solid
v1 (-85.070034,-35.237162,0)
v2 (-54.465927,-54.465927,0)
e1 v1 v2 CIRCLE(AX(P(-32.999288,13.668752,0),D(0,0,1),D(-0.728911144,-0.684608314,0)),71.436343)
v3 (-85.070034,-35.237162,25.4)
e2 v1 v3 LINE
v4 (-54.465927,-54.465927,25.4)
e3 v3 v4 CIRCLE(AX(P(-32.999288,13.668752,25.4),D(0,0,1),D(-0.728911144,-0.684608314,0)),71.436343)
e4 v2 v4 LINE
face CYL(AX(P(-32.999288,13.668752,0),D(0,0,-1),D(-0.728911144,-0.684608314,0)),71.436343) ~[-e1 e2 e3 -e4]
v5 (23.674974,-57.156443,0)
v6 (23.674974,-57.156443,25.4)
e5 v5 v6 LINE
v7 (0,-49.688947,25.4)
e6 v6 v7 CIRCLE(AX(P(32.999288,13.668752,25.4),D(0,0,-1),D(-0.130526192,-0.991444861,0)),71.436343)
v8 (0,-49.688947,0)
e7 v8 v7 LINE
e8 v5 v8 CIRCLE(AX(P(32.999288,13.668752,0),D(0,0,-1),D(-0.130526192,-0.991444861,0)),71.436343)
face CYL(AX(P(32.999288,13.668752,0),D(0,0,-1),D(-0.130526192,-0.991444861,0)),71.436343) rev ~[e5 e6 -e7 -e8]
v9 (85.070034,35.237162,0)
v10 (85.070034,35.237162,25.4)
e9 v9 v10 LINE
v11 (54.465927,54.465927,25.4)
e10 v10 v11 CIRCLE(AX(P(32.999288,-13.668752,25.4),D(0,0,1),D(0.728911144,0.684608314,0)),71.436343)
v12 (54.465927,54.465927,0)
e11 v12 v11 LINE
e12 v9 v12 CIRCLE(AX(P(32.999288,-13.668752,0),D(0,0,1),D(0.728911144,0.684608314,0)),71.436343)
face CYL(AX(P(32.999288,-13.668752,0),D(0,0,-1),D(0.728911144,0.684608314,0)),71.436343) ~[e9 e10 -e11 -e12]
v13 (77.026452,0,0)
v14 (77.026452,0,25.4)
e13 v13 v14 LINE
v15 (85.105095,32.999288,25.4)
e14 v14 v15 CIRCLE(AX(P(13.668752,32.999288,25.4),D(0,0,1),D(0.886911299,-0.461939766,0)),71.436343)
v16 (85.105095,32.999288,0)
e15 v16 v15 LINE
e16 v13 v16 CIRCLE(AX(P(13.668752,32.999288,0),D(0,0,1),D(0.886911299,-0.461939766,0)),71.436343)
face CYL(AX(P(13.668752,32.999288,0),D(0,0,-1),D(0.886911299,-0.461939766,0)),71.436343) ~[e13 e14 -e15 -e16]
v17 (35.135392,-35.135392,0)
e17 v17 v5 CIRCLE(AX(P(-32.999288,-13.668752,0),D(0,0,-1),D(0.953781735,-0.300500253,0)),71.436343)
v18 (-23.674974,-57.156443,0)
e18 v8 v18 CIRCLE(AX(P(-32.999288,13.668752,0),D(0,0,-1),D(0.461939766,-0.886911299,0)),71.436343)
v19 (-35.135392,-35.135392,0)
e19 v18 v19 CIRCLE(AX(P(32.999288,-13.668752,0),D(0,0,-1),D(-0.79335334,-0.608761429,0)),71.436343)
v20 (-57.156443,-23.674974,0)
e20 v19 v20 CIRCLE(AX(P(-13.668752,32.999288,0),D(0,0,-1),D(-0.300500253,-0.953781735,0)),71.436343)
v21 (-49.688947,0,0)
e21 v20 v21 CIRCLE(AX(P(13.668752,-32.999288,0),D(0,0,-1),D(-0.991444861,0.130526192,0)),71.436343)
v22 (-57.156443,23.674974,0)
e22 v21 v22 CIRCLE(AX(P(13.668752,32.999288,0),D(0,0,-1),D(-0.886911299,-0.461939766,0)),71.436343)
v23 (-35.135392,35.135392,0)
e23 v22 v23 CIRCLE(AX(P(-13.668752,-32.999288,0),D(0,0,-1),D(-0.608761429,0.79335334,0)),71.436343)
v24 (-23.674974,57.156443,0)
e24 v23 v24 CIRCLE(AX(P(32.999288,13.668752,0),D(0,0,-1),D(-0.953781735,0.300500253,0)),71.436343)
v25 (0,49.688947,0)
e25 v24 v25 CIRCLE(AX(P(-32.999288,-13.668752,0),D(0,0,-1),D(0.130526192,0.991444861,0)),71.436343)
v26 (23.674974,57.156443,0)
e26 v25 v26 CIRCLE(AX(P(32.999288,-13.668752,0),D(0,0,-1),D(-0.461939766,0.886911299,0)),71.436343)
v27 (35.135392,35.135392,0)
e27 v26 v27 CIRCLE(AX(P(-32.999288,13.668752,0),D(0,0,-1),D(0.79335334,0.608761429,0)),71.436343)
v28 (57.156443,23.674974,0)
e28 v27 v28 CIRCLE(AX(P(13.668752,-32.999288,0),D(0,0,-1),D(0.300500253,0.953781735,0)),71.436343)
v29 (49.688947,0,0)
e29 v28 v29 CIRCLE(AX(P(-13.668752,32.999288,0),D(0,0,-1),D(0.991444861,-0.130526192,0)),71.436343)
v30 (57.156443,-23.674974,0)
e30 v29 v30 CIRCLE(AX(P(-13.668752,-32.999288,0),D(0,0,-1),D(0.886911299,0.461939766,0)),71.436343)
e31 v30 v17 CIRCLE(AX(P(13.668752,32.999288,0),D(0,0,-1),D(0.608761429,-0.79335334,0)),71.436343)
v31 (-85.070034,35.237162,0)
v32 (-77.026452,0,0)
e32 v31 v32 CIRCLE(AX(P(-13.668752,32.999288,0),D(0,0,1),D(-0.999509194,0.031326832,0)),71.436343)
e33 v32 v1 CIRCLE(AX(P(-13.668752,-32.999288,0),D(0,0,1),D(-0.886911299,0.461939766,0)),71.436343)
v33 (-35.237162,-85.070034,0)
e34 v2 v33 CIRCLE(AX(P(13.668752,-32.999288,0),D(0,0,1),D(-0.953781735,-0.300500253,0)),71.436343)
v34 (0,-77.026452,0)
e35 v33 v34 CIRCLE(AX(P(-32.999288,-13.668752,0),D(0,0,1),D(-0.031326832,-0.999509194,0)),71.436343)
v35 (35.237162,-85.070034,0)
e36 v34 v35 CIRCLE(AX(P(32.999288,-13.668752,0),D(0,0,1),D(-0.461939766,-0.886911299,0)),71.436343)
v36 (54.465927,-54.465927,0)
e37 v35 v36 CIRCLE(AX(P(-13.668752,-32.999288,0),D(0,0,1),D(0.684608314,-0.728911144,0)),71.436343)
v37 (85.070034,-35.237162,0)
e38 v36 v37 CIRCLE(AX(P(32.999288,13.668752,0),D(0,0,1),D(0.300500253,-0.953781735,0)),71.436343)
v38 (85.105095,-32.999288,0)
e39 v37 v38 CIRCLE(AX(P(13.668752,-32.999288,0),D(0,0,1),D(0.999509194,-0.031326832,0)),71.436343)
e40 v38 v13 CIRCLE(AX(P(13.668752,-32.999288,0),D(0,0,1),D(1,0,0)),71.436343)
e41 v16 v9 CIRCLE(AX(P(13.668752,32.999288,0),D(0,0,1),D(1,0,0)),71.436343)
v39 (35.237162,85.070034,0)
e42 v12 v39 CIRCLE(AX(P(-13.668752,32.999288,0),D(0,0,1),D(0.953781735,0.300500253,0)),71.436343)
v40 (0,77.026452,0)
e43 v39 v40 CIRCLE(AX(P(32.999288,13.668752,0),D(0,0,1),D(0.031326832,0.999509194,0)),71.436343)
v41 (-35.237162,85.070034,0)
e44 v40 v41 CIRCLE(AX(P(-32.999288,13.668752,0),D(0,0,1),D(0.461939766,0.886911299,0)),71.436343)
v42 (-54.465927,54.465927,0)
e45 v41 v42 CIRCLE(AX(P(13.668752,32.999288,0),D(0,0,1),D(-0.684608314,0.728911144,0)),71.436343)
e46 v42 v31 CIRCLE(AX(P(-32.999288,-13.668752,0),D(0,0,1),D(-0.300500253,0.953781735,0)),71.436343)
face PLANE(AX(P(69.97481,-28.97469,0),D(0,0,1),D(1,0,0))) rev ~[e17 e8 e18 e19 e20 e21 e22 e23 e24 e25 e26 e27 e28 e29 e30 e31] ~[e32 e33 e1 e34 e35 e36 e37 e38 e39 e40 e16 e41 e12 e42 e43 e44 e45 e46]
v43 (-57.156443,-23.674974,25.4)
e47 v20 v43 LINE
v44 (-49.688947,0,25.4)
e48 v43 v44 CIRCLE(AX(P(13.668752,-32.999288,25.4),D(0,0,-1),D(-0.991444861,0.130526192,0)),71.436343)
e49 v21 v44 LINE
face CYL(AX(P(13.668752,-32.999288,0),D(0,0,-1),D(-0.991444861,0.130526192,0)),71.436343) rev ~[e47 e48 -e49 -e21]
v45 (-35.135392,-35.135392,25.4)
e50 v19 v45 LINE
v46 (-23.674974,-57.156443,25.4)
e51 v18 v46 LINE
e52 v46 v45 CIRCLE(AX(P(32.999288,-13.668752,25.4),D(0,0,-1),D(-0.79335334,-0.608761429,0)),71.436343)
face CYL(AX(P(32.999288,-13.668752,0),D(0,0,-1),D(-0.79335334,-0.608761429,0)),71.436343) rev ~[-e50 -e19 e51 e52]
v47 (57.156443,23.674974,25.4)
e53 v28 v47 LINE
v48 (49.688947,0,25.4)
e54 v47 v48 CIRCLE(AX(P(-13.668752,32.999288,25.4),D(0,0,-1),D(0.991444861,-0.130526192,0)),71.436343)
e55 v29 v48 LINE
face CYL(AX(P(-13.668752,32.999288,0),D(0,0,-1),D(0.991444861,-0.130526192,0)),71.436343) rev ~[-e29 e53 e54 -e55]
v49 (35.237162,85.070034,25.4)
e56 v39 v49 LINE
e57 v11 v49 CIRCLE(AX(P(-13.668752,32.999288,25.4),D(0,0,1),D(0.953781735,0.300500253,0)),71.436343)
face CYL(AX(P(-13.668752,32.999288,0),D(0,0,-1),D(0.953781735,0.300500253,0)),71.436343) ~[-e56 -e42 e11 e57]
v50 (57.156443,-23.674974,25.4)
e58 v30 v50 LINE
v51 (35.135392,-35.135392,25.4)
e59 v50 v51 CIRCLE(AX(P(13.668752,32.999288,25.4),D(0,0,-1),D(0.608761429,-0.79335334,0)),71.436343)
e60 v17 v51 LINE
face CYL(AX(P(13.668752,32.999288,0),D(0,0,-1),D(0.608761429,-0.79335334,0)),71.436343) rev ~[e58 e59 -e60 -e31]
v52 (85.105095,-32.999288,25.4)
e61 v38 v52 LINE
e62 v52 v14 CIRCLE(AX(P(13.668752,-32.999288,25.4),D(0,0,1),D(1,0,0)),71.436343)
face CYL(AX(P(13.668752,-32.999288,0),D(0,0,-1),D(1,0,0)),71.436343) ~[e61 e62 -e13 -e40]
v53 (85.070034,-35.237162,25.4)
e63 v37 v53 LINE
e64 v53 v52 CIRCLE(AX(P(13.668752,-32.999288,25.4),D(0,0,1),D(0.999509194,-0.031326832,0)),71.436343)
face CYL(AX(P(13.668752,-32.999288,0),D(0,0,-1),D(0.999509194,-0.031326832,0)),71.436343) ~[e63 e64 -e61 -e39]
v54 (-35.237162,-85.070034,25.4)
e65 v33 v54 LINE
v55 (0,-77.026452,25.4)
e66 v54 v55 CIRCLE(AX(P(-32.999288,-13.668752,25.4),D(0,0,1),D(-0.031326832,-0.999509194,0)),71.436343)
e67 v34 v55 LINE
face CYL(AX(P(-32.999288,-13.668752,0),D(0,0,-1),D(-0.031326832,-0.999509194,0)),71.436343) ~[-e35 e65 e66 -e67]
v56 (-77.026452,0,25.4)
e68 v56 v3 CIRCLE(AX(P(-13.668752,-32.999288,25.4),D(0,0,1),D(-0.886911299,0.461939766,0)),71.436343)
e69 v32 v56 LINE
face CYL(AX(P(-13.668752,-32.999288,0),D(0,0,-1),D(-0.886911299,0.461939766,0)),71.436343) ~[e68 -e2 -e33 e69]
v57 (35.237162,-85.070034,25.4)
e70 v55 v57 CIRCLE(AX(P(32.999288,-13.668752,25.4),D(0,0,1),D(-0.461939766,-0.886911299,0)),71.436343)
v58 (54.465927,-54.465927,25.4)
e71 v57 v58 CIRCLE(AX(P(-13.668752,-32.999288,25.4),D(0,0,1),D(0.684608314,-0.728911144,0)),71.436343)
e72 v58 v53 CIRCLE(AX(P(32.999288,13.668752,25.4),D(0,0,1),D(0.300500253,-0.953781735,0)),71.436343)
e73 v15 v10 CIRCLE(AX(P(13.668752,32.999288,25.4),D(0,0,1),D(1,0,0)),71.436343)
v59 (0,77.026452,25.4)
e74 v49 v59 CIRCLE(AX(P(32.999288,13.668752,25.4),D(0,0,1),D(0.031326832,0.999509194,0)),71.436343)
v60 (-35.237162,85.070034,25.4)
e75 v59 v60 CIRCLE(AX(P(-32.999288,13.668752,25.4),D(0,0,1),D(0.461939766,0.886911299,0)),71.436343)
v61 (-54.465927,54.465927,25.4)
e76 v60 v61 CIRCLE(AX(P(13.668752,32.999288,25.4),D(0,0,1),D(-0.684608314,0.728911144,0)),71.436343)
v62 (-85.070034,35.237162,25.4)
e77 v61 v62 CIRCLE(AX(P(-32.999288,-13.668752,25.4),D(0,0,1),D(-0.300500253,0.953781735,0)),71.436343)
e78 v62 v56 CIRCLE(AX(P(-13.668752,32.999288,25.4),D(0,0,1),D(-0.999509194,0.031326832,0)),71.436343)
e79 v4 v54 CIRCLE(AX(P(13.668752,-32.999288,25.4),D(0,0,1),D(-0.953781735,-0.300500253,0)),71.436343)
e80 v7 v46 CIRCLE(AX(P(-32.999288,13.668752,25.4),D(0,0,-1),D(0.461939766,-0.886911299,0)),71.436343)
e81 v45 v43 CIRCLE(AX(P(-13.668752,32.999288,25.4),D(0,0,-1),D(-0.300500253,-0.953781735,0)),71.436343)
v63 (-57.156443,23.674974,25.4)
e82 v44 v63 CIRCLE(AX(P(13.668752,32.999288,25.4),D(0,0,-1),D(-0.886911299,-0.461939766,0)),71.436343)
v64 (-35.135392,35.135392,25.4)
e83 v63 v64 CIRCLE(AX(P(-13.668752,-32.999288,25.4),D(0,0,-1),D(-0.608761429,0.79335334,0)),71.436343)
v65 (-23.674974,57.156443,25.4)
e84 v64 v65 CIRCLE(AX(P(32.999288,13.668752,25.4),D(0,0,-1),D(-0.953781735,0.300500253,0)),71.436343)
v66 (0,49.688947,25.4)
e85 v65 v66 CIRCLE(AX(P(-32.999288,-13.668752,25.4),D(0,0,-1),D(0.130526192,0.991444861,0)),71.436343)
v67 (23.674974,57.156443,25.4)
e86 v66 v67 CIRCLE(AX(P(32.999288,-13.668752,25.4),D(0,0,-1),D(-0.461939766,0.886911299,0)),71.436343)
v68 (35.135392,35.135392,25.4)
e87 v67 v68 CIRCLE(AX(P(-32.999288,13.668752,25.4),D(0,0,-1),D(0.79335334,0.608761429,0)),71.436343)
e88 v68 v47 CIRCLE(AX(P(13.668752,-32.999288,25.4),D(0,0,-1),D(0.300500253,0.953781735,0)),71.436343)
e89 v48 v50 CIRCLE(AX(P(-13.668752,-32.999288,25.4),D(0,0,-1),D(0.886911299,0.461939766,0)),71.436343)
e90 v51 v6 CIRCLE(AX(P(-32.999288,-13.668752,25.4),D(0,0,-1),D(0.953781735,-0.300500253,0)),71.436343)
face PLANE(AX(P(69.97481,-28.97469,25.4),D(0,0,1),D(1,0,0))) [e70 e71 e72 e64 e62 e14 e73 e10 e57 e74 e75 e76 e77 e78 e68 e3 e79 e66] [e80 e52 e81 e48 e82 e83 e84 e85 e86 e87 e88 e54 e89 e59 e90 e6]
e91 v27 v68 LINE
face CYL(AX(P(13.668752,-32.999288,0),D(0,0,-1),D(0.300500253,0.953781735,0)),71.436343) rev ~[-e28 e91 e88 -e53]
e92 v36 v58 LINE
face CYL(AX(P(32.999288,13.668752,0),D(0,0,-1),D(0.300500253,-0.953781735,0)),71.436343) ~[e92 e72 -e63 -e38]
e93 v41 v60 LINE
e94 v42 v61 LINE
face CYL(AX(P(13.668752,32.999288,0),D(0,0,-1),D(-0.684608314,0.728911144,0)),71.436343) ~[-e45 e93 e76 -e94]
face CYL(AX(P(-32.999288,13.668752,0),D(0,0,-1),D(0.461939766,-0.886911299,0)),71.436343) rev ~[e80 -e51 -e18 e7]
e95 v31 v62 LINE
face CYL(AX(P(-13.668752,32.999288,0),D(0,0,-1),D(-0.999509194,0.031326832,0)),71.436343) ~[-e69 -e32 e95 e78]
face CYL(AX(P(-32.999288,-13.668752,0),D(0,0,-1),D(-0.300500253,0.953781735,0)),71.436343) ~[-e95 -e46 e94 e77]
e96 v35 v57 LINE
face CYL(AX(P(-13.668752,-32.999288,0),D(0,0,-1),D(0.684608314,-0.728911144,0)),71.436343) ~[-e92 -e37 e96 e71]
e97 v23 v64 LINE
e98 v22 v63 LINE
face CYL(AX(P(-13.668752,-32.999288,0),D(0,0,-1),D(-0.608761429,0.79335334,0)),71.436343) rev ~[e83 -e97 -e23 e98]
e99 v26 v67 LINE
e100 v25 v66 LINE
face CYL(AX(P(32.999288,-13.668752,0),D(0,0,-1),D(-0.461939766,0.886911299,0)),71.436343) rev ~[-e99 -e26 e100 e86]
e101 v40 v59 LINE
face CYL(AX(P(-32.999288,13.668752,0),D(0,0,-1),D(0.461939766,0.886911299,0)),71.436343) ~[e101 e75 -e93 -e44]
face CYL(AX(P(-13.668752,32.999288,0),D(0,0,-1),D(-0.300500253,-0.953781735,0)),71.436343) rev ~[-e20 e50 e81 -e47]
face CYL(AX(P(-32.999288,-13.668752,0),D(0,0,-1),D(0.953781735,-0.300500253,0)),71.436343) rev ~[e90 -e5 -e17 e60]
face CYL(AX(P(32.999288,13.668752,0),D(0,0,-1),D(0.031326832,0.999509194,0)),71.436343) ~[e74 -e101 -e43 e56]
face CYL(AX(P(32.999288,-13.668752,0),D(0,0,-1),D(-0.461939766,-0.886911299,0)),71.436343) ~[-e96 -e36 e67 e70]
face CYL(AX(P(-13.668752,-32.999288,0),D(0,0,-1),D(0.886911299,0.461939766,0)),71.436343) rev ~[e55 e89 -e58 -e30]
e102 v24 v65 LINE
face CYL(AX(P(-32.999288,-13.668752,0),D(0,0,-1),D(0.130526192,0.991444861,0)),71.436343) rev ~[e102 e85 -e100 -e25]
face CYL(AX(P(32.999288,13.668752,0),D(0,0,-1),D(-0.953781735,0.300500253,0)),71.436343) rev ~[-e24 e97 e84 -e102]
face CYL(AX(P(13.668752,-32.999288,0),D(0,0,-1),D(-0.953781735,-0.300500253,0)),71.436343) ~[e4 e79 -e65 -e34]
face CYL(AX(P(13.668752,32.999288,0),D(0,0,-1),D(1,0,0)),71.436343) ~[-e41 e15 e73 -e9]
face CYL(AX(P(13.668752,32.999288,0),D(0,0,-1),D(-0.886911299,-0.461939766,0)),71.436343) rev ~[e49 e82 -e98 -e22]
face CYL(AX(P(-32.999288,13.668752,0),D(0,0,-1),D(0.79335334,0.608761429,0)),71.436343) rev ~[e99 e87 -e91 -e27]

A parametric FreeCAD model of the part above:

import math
import FreeCAD as App
import Part
import Sketcher
from FreeCAD import Vector
Q = App.Units.Quantity

doc = App.newDocument("Part")
body = doc.addObject("PartDesign::Body", "Body")

# Sketch on XY plane
sketch1 = body.newObject("Sketcher::SketchObject", "Sketch")
sketch1.AttachmentSupport = (doc.getObject("XY_Plane"), [""])
sketch1.MapMode = "FlatFace"
sketch1.addGeometry([
    Part.ArcOfCircle(Part.Circle(Vector(-32.999288, -13.668752, 0), Vector(0, 0, 1), 71.436343), math.radians(-91.795189), math.radians(-62.487652)),  # 0
    Part.ArcOfCircle(Part.Circle(Vector(32.999288, -13.668752, 0), Vector(0, 0, 1), 71.436343), math.radians(-117.512348), math.radians(-88.204811)),  # 1
    Part.ArcOfCircle(Part.Circle(Vector(-13.668752, -32.999288, 0), Vector(0, 0, 1), 71.436343), math.radians(-46.795189), math.radians(-17.487652)),  # 2
    Part.ArcOfCircle(Part.Circle(Vector(32.999288, 13.668752, 0), Vector(0, 0, 1), 71.436343), math.radians(-72.512348), math.radians(-43.204811)),  # 3
    Part.ArcOfCircle(Part.Circle(Vector(13.668752, -32.999288, 0), Vector(0, 0, 1), 71.436343), math.radians(-1.795189), math.radians(0)),  # 4
    Part.ArcOfCircle(Part.Circle(Vector(13.668752, -32.999288, 0), Vector(0, 0, 1), 71.436343), math.radians(0), math.radians(27.512348)),  # 5
    Part.ArcOfCircle(Part.Circle(Vector(13.668752, 32.999288, 0), Vector(0, 0, 1), 71.436343), math.radians(-27.512348), math.radians(0)),  # 6
    Part.ArcOfCircle(Part.Circle(Vector(13.668752, 32.999288, 0), Vector(0, 0, 1), 71.436343), math.radians(0), math.radians(1.795189)),  # 7
    Part.ArcOfCircle(Part.Circle(Vector(32.999288, -13.668752, 0), Vector(0, 0, 1), 71.436343), math.radians(43.204811), math.radians(72.512348)),  # 8
    Part.ArcOfCircle(Part.Circle(Vector(-13.668752, 32.999288, 0), Vector(0, 0, 1), 71.436343), math.radians(17.487652), math.radians(46.795189)),  # 9
    Part.ArcOfCircle(Part.Circle(Vector(32.999288, 13.668752, 0), Vector(0, 0, 1), 71.436343), math.radians(88.204811), math.radians(117.512348)),  # 10
    Part.ArcOfCircle(Part.Circle(Vector(-32.999288, 13.668752, 0), Vector(0, 0, 1), 71.436343), math.radians(62.487652), math.radians(91.795189)),  # 11
    Part.ArcOfCircle(Part.Circle(Vector(13.668752, 32.999288, 0), Vector(0, 0, 1), 71.436343), math.radians(133.204811), math.radians(162.512348)),  # 12
    Part.ArcOfCircle(Part.Circle(Vector(-32.999288, -13.668752, 0), Vector(0, 0, 1), 71.436343), math.radians(107.487652), math.radians(136.795189)),  # 13
    Part.ArcOfCircle(Part.Circle(Vector(-13.668752, 32.999288, 0), Vector(0, 0, 1), 71.436343), math.radians(178.204811), math.radians(207.512348)),  # 14
    Part.ArcOfCircle(Part.Circle(Vector(-13.668752, -32.999288, 0), Vector(0, 0, 1), 71.436343), math.radians(152.487652), math.radians(181.795189)),  # 15
    Part.ArcOfCircle(Part.Circle(Vector(-32.999288, 13.668752, 0), Vector(0, 0, 1), 71.436343), math.radians(-136.795189), math.radians(-107.487652)),  # 16
    Part.ArcOfCircle(Part.Circle(Vector(13.668752, -32.999288, 0), Vector(0, 0, 1), 71.436343), math.radians(-162.512348), math.radians(-133.204811)),  # 17
    Part.ArcOfCircle(Part.Circle(Vector(-32.999288, -13.668752, 0), Vector(0, 0, 1), 71.436343), math.radians(-37.5), math.radians(-17.487652)),  # 18
    Part.ArcOfCircle(Part.Circle(Vector(32.999288, 13.668752, 0), Vector(0, 0, 1), 71.436343), math.radians(-117.512348), math.radians(-97.5)),  # 19
    Part.ArcOfCircle(Part.Circle(Vector(-32.999288, 13.668752, 0), Vector(0, 0, 1), 71.436343), math.radians(-82.5), math.radians(-62.487652)),  # 20
    Part.ArcOfCircle(Part.Circle(Vector(32.999288, -13.668752, 0), Vector(0, 0, 1), 71.436343), math.radians(-162.512348), math.radians(-142.5)),  # 21
    Part.ArcOfCircle(Part.Circle(Vector(-13.668752, 32.999288, 0), Vector(0, 0, 1), 71.436343), math.radians(-127.5), math.radians(-107.487652)),  # 22
    Part.ArcOfCircle(Part.Circle(Vector(13.668752, -32.999288, 0), Vector(0, 0, 1), 71.436343), math.radians(152.487652), math.radians(172.5)),  # 23
    Part.ArcOfCircle(Part.Circle(Vector(13.668752, 32.999288, 0), Vector(0, 0, 1), 71.436343), math.radians(-172.5), math.radians(-152.487652)),  # 24
    Part.ArcOfCircle(Part.Circle(Vector(-13.668752, -32.999288, 0), Vector(0, 0, 1), 71.436343), math.radians(107.487652), math.radians(127.5)),  # 25
    Part.ArcOfCircle(Part.Circle(Vector(32.999288, 13.668752, 0), Vector(0, 0, 1), 71.436343), math.radians(142.5), math.radians(162.512348)),  # 26
    Part.ArcOfCircle(Part.Circle(Vector(-32.999288, -13.668752, 0), Vector(0, 0, 1), 71.436343), math.radians(62.487652), math.radians(82.5)),  # 27
    Part.ArcOfCircle(Part.Circle(Vector(32.999288, -13.668752, 0), Vector(0, 0, 1), 71.436343), math.radians(97.5), math.radians(117.512348)),  # 28
    Part.ArcOfCircle(Part.Circle(Vector(-32.999288, 13.668752, 0), Vector(0, 0, 1), 71.436343), math.radians(17.487652), math.radians(37.5)),  # 29
    Part.ArcOfCircle(Part.Circle(Vector(13.668752, -32.999288, 0), Vector(0, 0, 1), 71.436343), math.radians(52.5), math.radians(72.512348)),  # 30
    Part.ArcOfCircle(Part.Circle(Vector(-13.668752, 32.999288, 0), Vector(0, 0, 1), 71.436343), math.radians(-27.512348), math.radians(-7.5)),  # 31
    Part.ArcOfCircle(Part.Circle(Vector(-13.668752, -32.999288, 0), Vector(0, 0, 1), 71.436343), math.radians(7.5), math.radians(27.512348)),  # 32
    Part.ArcOfCircle(Part.Circle(Vector(13.668752, 32.999288, 0), Vector(0, 0, 1), 71.436343), math.radians(-72.512348), math.radians(-52.5)),  # 33
], False)
sketch1.addConstraint([
    Sketcher.Constraint("Coincident", 0, 2, 1, 1),
    Sketcher.Constraint("Coincident", 1, 2, 2, 1),
    Sketcher.Constraint("Coincident", 2, 2, 3, 1),
    Sketcher.Constraint("Coincident", 3, 2, 4, 1),
    Sketcher.Constraint("Tangent", 4, 2, 5, 1),
    Sketcher.Constraint("Coincident", 5, 2, 6, 1),
    Sketcher.Constraint("Tangent", 6, 2, 7, 1),
    Sketcher.Constraint("Coincident", 7, 2, 8, 1),
    Sketcher.Constraint("Coincident", 8, 2, 9, 1),
    Sketcher.Constraint("Coincident", 9, 2, 10, 1),
    Sketcher.Constraint("Coincident", 10, 2, 11, 1),
    Sketcher.Constraint("Coincident", 11, 2, 12, 1),
    Sketcher.Constraint("Coincident", 12, 2, 13, 1),
    Sketcher.Constraint("Coincident", 13, 2, 14, 1),
    Sketcher.Constraint("Coincident", 14, 2, 15, 1),
    Sketcher.Constraint("Coincident", 15, 2, 16, 1),
    Sketcher.Constraint("Coincident", 16, 2, 17, 1),
    Sketcher.Constraint("Coincident", 17, 2, 0, 1),
    Sketcher.Constraint("Coincident", 18, 1, 19, 2),
    Sketcher.Constraint("Coincident", 19, 1, 20, 2),
    Sketcher.Constraint("Coincident", 20, 1, 21, 2),
    Sketcher.Constraint("Coincident", 21, 1, 22, 2),
    Sketcher.Constraint("Coincident", 22, 1, 23, 2),
    Sketcher.Constraint("Coincident", 23, 1, 24, 2),
    Sketcher.Constraint("Coincident", 24, 1, 25, 2),
    Sketcher.Constraint("Coincident", 25, 1, 26, 2),
    Sketcher.Constraint("Coincident", 26, 1, 27, 2),
    Sketcher.Constraint("Coincident", 27, 1, 28, 2),
    Sketcher.Constraint("Coincident", 28, 1, 29, 2),
    Sketcher.Constraint("Coincident", 29, 1, 30, 2),
    Sketcher.Constraint("Coincident", 30, 1, 31, 2),
    Sketcher.Constraint("Coincident", 31, 1, 32, 2),
    Sketcher.Constraint("Coincident", 32, 1, 33, 2),
    Sketcher.Constraint("Coincident", 33, 1, 18, 2),
    Sketcher.Constraint("Coincident", 8, 3, 1, 3),
    Sketcher.Constraint("Coincident", 10, 3, 3, 3),
    Sketcher.Constraint("Coincident", 12, 3, 6, 3),
    Sketcher.Constraint("Coincident", 13, 3, 0, 3),
    Sketcher.Constraint("Coincident", 14, 3, 9, 3),
    Sketcher.Constraint("Coincident", 15, 3, 2, 3),
    Sketcher.Constraint("Coincident", 16, 3, 11, 3),
    Sketcher.Constraint("Coincident", 17, 3, 4, 3),
    Sketcher.Constraint("Coincident", 18, 3, 0, 3),
    Sketcher.Constraint("Coincident", 19, 3, 3, 3),
    Sketcher.Constraint("Coincident", 20, 3, 11, 3),
    Sketcher.Constraint("Coincident", 21, 3, 1, 3),
    Sketcher.Constraint("Coincident", 22, 3, 9, 3),
    Sketcher.Constraint("Coincident", 23, 3, 4, 3),
    Sketcher.Constraint("Coincident", 24, 3, 6, 3),
    Sketcher.Constraint("Coincident", 25, 3, 2, 3),
    Sketcher.Constraint("Coincident", 26, 3, 3, 3),
    Sketcher.Constraint("Coincident", 27, 3, 0, 3),
    Sketcher.Constraint("Coincident", 28, 3, 1, 3),
    Sketcher.Constraint("Coincident", 29, 3, 11, 3),
    Sketcher.Constraint("Coincident", 30, 3, 4, 3),
    Sketcher.Constraint("Coincident", 31, 3, 9, 3),
    Sketcher.Constraint("Coincident", 32, 3, 2, 3),
    Sketcher.Constraint("Coincident", 33, 3, 6, 3),
    Sketcher.Constraint("Equal", 0, 1),
    Sketcher.Constraint("Equal", 1, 2),
    Sketcher.Constraint("Equal", 2, 3),
    Sketcher.Constraint("Equal", 3, 4),
    Sketcher.Constraint("Equal", 4, 5),
    Sketcher.Constraint("Equal", 5, 6),
    Sketcher.Constraint("Equal", 6, 7),
    Sketcher.Constraint("Equal", 7, 8),
    Sketcher.Constraint("Equal", 8, 9),
    Sketcher.Constraint("Equal", 9, 10),
    Sketcher.Constraint("Equal", 10, 11),
    Sketcher.Constraint("Equal", 11, 12),
    Sketcher.Constraint("Equal", 12, 13),
    Sketcher.Constraint("Equal", 13, 14),
    Sketcher.Constraint("Equal", 14, 15),
    Sketcher.Constraint("Equal", 15, 16),
    Sketcher.Constraint("Equal", 16, 17),
    Sketcher.Constraint("Equal", 17, 18),
    Sketcher.Constraint("Equal", 18, 19),
    Sketcher.Constraint("Equal", 19, 20),
    Sketcher.Constraint("Equal", 20, 21),
    Sketcher.Constraint("Equal", 21, 22),
    Sketcher.Constraint("Equal", 22, 23),
    Sketcher.Constraint("Equal", 23, 24),
    Sketcher.Constraint("Equal", 24, 25),
    Sketcher.Constraint("Equal", 25, 26),
    Sketcher.Constraint("Equal", 26, 27),
    Sketcher.Constraint("Equal", 27, 28),
    Sketcher.Constraint("Equal", 28, 29),
    Sketcher.Constraint("Equal", 29, 30),
    Sketcher.Constraint("Equal", 30, 31),
    Sketcher.Constraint("Equal", 31, 32),
    Sketcher.Constraint("Equal", 32, 33),
    Sketcher.Constraint("Symmetric", 0, 3, 3, 3, -1, 1),
    Sketcher.Constraint("Symmetric", 2, 3, 6, 3, -1, 1),
    Sketcher.Constraint("Symmetric", 4, 3, 9, 3, -1, 1),
    Sketcher.Constraint("Symmetric", 1, 3, 11, 3, -1, 1),
    Sketcher.Constraint("Symmetric", 0, 3, 1, 3, -2),
    Sketcher.Constraint("Symmetric", 2, 3, 4, 3, -2),
    Sketcher.Constraint("Horizontal", 32, 3, 4, 2),
    Sketcher.Constraint("Horizontal", 33, 3, 6, 2),
    Sketcher.Constraint("Radius", 0, Q("71.436343 mm")),
    Sketcher.Constraint("DistanceX", -1, 1, 1, 2, Q("35.237162 mm")),
    Sketcher.Constraint("DistanceY", 3, 2, -1, 1, Q("35.237162 mm")),
    Sketcher.Constraint("DistanceX", 21, 1, -1, 1, Q("35.135392 mm")),
    Sketcher.Constraint("DistanceY", 21, 1, -1, 1, Q("35.135392 mm")),
])
pad1 = body.newObject("PartDesign::Pad", "Pad")
pad1.Profile = sketch1
pad1.Length = Q("1 in")

doc.recompute()
